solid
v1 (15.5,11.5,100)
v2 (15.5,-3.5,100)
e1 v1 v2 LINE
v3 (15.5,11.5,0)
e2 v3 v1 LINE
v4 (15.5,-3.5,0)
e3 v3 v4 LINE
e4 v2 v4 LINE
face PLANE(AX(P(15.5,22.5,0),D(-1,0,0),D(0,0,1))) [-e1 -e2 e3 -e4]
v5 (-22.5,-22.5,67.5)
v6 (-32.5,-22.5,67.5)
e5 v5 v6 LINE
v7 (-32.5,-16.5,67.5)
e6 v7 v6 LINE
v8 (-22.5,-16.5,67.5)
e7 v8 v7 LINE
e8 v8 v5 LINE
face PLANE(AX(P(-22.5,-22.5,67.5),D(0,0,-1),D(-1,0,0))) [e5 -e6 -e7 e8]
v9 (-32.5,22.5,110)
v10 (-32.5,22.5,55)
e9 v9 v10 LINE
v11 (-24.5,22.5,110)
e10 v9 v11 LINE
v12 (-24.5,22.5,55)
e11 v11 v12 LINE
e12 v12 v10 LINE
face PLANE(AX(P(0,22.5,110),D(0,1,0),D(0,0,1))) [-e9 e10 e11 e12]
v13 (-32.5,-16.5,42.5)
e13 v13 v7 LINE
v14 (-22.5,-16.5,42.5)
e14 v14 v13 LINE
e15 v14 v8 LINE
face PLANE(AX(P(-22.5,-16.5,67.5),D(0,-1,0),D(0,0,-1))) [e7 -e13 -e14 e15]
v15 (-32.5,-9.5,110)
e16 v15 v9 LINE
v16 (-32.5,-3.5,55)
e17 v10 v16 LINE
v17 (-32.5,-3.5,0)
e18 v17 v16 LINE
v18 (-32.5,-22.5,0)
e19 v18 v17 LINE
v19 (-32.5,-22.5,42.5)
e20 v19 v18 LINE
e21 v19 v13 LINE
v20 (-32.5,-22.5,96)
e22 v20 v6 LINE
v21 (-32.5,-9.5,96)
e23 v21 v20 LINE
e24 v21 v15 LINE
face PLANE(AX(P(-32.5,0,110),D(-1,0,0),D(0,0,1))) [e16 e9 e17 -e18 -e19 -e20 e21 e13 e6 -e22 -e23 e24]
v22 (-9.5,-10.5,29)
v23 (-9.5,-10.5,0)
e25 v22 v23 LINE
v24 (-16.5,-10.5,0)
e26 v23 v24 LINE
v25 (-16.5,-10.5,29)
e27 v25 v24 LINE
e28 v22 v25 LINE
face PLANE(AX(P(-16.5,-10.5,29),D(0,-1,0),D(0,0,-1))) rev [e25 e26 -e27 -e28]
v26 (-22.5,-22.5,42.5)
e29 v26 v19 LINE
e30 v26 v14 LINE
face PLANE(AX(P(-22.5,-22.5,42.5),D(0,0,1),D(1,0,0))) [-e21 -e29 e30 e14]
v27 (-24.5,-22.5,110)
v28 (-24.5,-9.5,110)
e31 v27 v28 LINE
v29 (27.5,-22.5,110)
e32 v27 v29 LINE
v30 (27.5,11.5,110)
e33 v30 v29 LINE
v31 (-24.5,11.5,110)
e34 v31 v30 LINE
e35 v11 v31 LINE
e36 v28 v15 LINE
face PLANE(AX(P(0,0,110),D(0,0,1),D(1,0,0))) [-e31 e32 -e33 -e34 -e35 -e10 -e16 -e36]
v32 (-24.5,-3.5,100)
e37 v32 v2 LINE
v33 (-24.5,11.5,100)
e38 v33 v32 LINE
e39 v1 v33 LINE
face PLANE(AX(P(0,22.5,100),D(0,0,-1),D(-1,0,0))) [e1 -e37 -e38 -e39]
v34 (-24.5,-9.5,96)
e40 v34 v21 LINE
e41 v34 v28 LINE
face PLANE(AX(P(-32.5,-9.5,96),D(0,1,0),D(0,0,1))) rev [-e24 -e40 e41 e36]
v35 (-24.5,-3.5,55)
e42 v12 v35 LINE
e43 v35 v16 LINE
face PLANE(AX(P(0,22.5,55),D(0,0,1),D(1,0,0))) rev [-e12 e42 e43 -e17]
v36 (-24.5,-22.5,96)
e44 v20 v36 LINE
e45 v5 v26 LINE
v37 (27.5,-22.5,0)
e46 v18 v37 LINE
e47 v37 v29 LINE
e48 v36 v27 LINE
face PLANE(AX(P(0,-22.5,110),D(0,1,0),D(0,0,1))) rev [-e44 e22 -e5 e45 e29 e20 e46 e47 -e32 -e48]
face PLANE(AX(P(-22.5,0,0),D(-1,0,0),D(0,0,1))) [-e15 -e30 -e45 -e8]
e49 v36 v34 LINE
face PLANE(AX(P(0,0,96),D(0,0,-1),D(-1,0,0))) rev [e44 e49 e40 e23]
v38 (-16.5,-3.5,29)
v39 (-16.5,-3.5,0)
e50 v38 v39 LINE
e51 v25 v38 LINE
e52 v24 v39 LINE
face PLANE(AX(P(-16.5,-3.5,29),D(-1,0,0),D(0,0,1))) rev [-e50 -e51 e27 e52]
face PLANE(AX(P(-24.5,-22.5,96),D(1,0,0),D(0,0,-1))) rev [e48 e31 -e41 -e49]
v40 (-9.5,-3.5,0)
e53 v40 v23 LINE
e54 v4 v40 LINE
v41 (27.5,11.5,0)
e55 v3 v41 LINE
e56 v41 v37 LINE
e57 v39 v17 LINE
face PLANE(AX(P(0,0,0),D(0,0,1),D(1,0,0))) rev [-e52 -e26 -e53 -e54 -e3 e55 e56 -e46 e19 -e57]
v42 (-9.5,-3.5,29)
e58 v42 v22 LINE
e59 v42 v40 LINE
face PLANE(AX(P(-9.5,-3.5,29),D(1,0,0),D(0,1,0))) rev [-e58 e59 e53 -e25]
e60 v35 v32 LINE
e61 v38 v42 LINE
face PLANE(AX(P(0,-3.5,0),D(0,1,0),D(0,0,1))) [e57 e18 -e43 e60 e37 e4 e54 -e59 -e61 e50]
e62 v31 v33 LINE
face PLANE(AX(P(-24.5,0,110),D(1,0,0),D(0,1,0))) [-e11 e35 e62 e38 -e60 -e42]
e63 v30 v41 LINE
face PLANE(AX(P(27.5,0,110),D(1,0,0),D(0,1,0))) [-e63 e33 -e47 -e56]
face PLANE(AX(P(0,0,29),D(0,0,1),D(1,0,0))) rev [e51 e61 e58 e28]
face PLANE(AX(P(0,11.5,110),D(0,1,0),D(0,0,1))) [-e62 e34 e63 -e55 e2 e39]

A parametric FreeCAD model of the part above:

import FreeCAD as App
import Part
import Sketcher

V = App.Vector


def add_polygon(sketch, points):
    """Adds a closed chain of lines whose ends are joined by coincident constraints."""
    first, n = sketch.GeometryCount, len(points)
    for a, b in zip(points, points[1:] + points[:1]):
        sketch.addGeometry(Part.LineSegment(App.Vector(*a, 0), App.Vector(*b, 0)), False)
    for i in range(n):
        sketch.addConstraint(Sketcher.Constraint("Coincident", first + i, 2, first + (i + 1) % n, 1))

doc = App.newDocument("Part")
params = doc.addObject("Spreadsheet::Sheet", "Params")
for row, (alias, value) in enumerate([
    ("sketch1_width", "65 mm"),
    ("sketch1_width2", "5 mm"),
    ("sketch1_width3", "52 mm"),
    ("sketch1_height", "45 mm"),
    ("sketch1_height2", "16 mm"),
    ("pad1_length", "110 mm"),
    ("sketch2_width", "8 mm"),
    ("sketch2_height", "13 mm"),
    ("pocket1_length", "14 mm"),
    ("sketch3_width", "40 mm"),
    ("sketch3_width2", "48 mm"),
    ("sketch3_height", "100 mm"),
    ("sketch3_height2", "55 mm"),
    ("pocket2_length", "120.633816 mm"),
    ("pocket2_length2", "15 mm"),
    ("sketch4_width", "7 mm"),
    ("pocket3_length", "29 mm"),
    ("sketch5_width", "6 mm"),
    ("sketch5_height", "25 mm"),
    ("pocket4_length", "10 mm"),
    ("sketch6_width", "5 mm"),
    ("sketch6_height", "110 mm"),
], start=1):
    params.set(f"A{row}", alias)
    params.set(f"B{row}", "=" + value)
    params.setAlias(f"B{row}", alias)

body = doc.addObject("PartDesign::Body", "Body")

sketch1 = body.newObject("Sketcher::SketchObject", "Sketch")
sketch1.AttachmentSupport = (doc.getObject("XY_Plane"), [""])
sketch1.MapMode = "FlatFace"
add_polygon(sketch1, [(-32, 22), (-32, -22), (32, -22), (32, -6), (28, -6), (28, 12), (-24, 12), (-24, 22)])
sketch1.addConstraint(Sketcher.Constraint("Vertical", 0))
sketch1.addConstraint(Sketcher.Constraint("Horizontal", 1))
sketch1.addConstraint(Sketcher.Constraint("Vertical", 2))
sketch1.addConstraint(Sketcher.Constraint("Horizontal", 3))
sketch1.addConstraint(Sketcher.Constraint("Vertical", 4))
sketch1.addConstraint(Sketcher.Constraint("Horizontal", 5))
sketch1.addConstraint(Sketcher.Constraint("Vertical", 6))
sketch1.addConstraint(Sketcher.Constraint("Horizontal", 7))
sketch1.addConstraint(Sketcher.Constraint("Symmetric", 1, 2, 7, 2, -1, 1))
sketch1.addConstraint(Sketcher.Constraint("DistanceX", 1, 1, 1, 2, 65.0))
sketch1.addConstraint(Sketcher.Constraint("DistanceX", 3, 2, 3, 1, 5.0))
sketch1.addConstraint(Sketcher.Constraint("DistanceX", 5, 2, 5, 1, 52.0))
sketch1.addConstraint(Sketcher.Constraint("DistanceY", 0, 2, 0, 1, 45.0))
sketch1.addConstraint(Sketcher.Constraint("DistanceY", 2, 1, 2, 2, 16.0))
sketch1.addConstraint(Sketcher.Constraint("DistanceY", 4, 1, 4, 2, 18.0))
sketch1.setExpression("Constraints[17]", "Params.sketch1_width")
sketch1.setExpression("Constraints[18]", "Params.sketch1_width2")
sketch1.setExpression("Constraints[19]", "Params.sketch1_width3")
sketch1.setExpression("Constraints[20]", "Params.sketch1_height")
sketch1.setExpression("Constraints[21]", "Params.sketch1_height2")
pad1 = body.newObject("PartDesign::Pad", "Pad")
pad1.Profile = sketch1
pad1.setExpression("Length", "Params.pad1_length")

sketch2 = body.newObject("Sketcher::SketchObject", "Sketch001")
sketch2.AttachmentSupport = (doc.getObject("XY_Plane"), [""])
sketch2.MapMode = "FlatFace"
sketch2.AttachmentOffset = App.Placement(V(0, 0, 110), App.Rotation())
add_polygon(sketch2, [(-32, -10), (-32, -22), (-24, -22), (-24, -10)])
sketch2.addConstraint(Sketcher.Constraint("Vertical", 0))
sketch2.addConstraint(Sketcher.Constraint("Horizontal", 1))
sketch2.addConstraint(Sketcher.Constraint("Vertical", 2))
sketch2.addConstraint(Sketcher.Constraint("Horizontal", 3))
sketch2.addConstraint(Sketcher.Constraint("DistanceX", 1, 1, 1, 2, 8.0))
sketch2.addConstraint(Sketcher.Constraint("DistanceY", 0, 2, 0, 1, 13.0))
sketch2.addConstraint(Sketcher.Constraint("DistanceX", 0, 2, -1, 1, 32.5))
sketch2.addConstraint(Sketcher.Constraint("DistanceY", 0, 2, -1, 1, 22.5))
sketch2.setExpression("Constraints[8]", "Params.sketch2_width")
sketch2.setExpression("Constraints[9]", "Params.sketch2_height")
pocket1 = body.newObject("PartDesign::Pocket", "Pocket")
pocket1.Profile = sketch2
pocket1.setExpression("Length", "Params.pocket1_length")

sketch3 = body.newObject("Sketcher::SketchObject", "Sketch002")
sketch3.AttachmentSupport = (doc.getObject("XZ_Plane"), [""])
sketch3.MapMode = "FlatFace"
sketch3.AttachmentOffset = App.Placement(V(0, 0, -11.5), App.Rotation())
add_polygon(sketch3, [(-24, 100), (16, 100), (16, 0), (-32, 0), (-32, 55), (-24, 55)])
sketch3.addConstraint(Sketcher.Constraint("Horizontal", 0))
sketch3.addConstraint(Sketcher.Constraint("Vertical", 1))
sketch3.addConstraint(Sketcher.Constraint("Horizontal", 2))
sketch3.addConstraint(Sketcher.Constraint("Vertical", 3))
sketch3.addConstraint(Sketcher.Constraint("Horizontal", 4))
sketch3.addConstraint(Sketcher.Constraint("Vertical", 5))
sketch3.addConstraint(Sketcher.Constraint("PointOnObject", 1, 2, -1))
sketch3.addConstraint(Sketcher.Constraint("DistanceX", 0, 1, 0, 2, 40.0))
sketch3.addConstraint(Sketcher.Constraint("DistanceX", 2, 2, 2, 1, 48.0))
sketch3.addConstraint(Sketcher.Constraint("DistanceY", 1, 2, 1, 1, 100.0))
sketch3.addConstraint(Sketcher.Constraint("DistanceY", 3, 1, 3, 2, 55.0))
sketch3.addConstraint(Sketcher.Constraint("DistanceX", -1, 1, 0, 2, 15.5))
sketch3.setExpression("Constraints[13]", "Params.sketch3_width")
sketch3.setExpression("Constraints[14]", "Params.sketch3_width2")
sketch3.setExpression("Constraints[15]", "Params.sketch3_height")
sketch3.setExpression("Constraints[16]", "Params.sketch3_height2")
pocket2 = body.newObject("PartDesign::Pocket", "Pocket001")
pocket2.Profile = sketch3
pocket2.Type = "TwoLengths"
pocket2.setExpression("Length", "Params.pocket2_length")
pocket2.setExpression("Length2", "Params.pocket2_length2")

sketch4 = body.newObject("Sketcher::SketchObject", "Sketch003")
sketch4.AttachmentSupport = (doc.getObject("XY_Plane"), [""])
sketch4.MapMode = "FlatFace"
add_polygon(sketch4, [(-10, -4), (-10, -10), (-16, -10), (-16, -4)])
sketch4.addConstraint(Sketcher.Constraint("Vertical", 0))
sketch4.addConstraint(Sketcher.Constraint("Horizontal", 1))
sketch4.addConstraint(Sketcher.Constraint("Vertical", 2))
sketch4.addConstraint(Sketcher.Constraint("Horizontal", 3))
sketch4.addConstraint(Sketcher.Constraint("Equal", 3, 0))
sketch4.addConstraint(Sketcher.Constraint("DistanceX", 1, 2, 1, 1, 7.0))
sketch4.addConstraint(Sketcher.Constraint("DistanceX", 0, 2, -1, 1, 9.5))
sketch4.addConstraint(Sketcher.Constraint("DistanceY", 0, 2, -1, 1, 10.5))
sketch4.setExpression("Constraints[9]", "Params.sketch4_width")
pocket3 = body.newObject("PartDesign::Pocket", "Pocket002")
pocket3.Profile = sketch4
pocket3.setExpression("Length", "Params.pocket3_length")
pocket3.Reversed = True

sketch5 = body.newObject("Sketcher::SketchObject", "Sketch004")
sketch5.AttachmentSupport = (doc.getObject("YZ_Plane"), [""])
sketch5.MapMode = "FlatFace"
sketch5.AttachmentOffset = App.Placement(V(0, 0, -32.5), App.Rotation())
add_polygon(sketch5, [(-16, 68), (-22, 68), (-22, 42), (-16, 42)])
sketch5.addConstraint(Sketcher.Constraint("Horizontal", 0))
sketch5.addConstraint(Sketcher.Constraint("Vertical", 1))
sketch5.addConstraint(Sketcher.Constraint("Horizontal", 2))
sketch5.addConstraint(Sketcher.Constraint("Vertical", 3))
sketch5.addConstraint(Sketcher.Constraint("DistanceX", 0, 2, 0, 1, 6.0))
sketch5.addConstraint(Sketcher.Constraint("DistanceY", 1, 2, 1, 1, 25.0))
sketch5.addConstraint(Sketcher.Constraint("DistanceX", 0, 2, -1, 1, 22.5))
sketch5.addConstraint(Sketcher.Constraint("DistanceY", -1, 1, 0, 2, 67.5))
sketch5.setExpression("Constraints[8]", "Params.sketch5_width")
sketch5.setExpression("Constraints[9]", "Params.sketch5_height")
pocket4 = body.newObject("PartDesign::Pocket", "Pocket003")
pocket4.Profile = sketch5
pocket4.setExpression("Length", "Params.pocket4_length")
pocket4.Reversed = True

sketch6 = body.newObject("Sketcher::SketchObject", "Sketch005")
sketch6.AttachmentSupport = (doc.getObject("XZ_Plane"), [""])
sketch6.MapMode = "FlatFace"
sketch6.AttachmentOffset = App.Placement(V(0, 0, 6.5), App.Rotation())
add_polygon(sketch6, [(28, 0), (28, 110), (32, 110), (32, 0)])
sketch6.addConstraint(Sketcher.Constraint("Vertical", 0))
sketch6.addConstraint(Sketcher.Constraint("Horizontal", 1))
sketch6.addConstraint(Sketcher.Constraint("Vertical", 2))
sketch6.addConstraint(Sketcher.Constraint("Horizontal", 3))
sketch6.addConstraint(Sketcher.Constraint("PointOnObject", 2, 2, -1))
sketch6.addConstraint(Sketcher.Constraint("DistanceX", 1, 1, 1, 2, 5.0))
sketch6.addConstraint(Sketcher.Constraint("DistanceY", 0, 1, 0, 2, 110.0))
sketch6.addConstraint(Sketcher.Constraint("DistanceX", -1, 1, 0, 2, 27.5))
sketch6.setExpression("Constraints[9]", "Params.sketch6_width")
sketch6.setExpression("Constraints[10]", "Params.sketch6_height")
pocket5 = body.newObject("PartDesign::Pocket", "Pocket004")
pocket5.Profile = sketch6
pocket5.Type = "ThroughAll"
pocket5.Reversed = True

doc.recompute()
